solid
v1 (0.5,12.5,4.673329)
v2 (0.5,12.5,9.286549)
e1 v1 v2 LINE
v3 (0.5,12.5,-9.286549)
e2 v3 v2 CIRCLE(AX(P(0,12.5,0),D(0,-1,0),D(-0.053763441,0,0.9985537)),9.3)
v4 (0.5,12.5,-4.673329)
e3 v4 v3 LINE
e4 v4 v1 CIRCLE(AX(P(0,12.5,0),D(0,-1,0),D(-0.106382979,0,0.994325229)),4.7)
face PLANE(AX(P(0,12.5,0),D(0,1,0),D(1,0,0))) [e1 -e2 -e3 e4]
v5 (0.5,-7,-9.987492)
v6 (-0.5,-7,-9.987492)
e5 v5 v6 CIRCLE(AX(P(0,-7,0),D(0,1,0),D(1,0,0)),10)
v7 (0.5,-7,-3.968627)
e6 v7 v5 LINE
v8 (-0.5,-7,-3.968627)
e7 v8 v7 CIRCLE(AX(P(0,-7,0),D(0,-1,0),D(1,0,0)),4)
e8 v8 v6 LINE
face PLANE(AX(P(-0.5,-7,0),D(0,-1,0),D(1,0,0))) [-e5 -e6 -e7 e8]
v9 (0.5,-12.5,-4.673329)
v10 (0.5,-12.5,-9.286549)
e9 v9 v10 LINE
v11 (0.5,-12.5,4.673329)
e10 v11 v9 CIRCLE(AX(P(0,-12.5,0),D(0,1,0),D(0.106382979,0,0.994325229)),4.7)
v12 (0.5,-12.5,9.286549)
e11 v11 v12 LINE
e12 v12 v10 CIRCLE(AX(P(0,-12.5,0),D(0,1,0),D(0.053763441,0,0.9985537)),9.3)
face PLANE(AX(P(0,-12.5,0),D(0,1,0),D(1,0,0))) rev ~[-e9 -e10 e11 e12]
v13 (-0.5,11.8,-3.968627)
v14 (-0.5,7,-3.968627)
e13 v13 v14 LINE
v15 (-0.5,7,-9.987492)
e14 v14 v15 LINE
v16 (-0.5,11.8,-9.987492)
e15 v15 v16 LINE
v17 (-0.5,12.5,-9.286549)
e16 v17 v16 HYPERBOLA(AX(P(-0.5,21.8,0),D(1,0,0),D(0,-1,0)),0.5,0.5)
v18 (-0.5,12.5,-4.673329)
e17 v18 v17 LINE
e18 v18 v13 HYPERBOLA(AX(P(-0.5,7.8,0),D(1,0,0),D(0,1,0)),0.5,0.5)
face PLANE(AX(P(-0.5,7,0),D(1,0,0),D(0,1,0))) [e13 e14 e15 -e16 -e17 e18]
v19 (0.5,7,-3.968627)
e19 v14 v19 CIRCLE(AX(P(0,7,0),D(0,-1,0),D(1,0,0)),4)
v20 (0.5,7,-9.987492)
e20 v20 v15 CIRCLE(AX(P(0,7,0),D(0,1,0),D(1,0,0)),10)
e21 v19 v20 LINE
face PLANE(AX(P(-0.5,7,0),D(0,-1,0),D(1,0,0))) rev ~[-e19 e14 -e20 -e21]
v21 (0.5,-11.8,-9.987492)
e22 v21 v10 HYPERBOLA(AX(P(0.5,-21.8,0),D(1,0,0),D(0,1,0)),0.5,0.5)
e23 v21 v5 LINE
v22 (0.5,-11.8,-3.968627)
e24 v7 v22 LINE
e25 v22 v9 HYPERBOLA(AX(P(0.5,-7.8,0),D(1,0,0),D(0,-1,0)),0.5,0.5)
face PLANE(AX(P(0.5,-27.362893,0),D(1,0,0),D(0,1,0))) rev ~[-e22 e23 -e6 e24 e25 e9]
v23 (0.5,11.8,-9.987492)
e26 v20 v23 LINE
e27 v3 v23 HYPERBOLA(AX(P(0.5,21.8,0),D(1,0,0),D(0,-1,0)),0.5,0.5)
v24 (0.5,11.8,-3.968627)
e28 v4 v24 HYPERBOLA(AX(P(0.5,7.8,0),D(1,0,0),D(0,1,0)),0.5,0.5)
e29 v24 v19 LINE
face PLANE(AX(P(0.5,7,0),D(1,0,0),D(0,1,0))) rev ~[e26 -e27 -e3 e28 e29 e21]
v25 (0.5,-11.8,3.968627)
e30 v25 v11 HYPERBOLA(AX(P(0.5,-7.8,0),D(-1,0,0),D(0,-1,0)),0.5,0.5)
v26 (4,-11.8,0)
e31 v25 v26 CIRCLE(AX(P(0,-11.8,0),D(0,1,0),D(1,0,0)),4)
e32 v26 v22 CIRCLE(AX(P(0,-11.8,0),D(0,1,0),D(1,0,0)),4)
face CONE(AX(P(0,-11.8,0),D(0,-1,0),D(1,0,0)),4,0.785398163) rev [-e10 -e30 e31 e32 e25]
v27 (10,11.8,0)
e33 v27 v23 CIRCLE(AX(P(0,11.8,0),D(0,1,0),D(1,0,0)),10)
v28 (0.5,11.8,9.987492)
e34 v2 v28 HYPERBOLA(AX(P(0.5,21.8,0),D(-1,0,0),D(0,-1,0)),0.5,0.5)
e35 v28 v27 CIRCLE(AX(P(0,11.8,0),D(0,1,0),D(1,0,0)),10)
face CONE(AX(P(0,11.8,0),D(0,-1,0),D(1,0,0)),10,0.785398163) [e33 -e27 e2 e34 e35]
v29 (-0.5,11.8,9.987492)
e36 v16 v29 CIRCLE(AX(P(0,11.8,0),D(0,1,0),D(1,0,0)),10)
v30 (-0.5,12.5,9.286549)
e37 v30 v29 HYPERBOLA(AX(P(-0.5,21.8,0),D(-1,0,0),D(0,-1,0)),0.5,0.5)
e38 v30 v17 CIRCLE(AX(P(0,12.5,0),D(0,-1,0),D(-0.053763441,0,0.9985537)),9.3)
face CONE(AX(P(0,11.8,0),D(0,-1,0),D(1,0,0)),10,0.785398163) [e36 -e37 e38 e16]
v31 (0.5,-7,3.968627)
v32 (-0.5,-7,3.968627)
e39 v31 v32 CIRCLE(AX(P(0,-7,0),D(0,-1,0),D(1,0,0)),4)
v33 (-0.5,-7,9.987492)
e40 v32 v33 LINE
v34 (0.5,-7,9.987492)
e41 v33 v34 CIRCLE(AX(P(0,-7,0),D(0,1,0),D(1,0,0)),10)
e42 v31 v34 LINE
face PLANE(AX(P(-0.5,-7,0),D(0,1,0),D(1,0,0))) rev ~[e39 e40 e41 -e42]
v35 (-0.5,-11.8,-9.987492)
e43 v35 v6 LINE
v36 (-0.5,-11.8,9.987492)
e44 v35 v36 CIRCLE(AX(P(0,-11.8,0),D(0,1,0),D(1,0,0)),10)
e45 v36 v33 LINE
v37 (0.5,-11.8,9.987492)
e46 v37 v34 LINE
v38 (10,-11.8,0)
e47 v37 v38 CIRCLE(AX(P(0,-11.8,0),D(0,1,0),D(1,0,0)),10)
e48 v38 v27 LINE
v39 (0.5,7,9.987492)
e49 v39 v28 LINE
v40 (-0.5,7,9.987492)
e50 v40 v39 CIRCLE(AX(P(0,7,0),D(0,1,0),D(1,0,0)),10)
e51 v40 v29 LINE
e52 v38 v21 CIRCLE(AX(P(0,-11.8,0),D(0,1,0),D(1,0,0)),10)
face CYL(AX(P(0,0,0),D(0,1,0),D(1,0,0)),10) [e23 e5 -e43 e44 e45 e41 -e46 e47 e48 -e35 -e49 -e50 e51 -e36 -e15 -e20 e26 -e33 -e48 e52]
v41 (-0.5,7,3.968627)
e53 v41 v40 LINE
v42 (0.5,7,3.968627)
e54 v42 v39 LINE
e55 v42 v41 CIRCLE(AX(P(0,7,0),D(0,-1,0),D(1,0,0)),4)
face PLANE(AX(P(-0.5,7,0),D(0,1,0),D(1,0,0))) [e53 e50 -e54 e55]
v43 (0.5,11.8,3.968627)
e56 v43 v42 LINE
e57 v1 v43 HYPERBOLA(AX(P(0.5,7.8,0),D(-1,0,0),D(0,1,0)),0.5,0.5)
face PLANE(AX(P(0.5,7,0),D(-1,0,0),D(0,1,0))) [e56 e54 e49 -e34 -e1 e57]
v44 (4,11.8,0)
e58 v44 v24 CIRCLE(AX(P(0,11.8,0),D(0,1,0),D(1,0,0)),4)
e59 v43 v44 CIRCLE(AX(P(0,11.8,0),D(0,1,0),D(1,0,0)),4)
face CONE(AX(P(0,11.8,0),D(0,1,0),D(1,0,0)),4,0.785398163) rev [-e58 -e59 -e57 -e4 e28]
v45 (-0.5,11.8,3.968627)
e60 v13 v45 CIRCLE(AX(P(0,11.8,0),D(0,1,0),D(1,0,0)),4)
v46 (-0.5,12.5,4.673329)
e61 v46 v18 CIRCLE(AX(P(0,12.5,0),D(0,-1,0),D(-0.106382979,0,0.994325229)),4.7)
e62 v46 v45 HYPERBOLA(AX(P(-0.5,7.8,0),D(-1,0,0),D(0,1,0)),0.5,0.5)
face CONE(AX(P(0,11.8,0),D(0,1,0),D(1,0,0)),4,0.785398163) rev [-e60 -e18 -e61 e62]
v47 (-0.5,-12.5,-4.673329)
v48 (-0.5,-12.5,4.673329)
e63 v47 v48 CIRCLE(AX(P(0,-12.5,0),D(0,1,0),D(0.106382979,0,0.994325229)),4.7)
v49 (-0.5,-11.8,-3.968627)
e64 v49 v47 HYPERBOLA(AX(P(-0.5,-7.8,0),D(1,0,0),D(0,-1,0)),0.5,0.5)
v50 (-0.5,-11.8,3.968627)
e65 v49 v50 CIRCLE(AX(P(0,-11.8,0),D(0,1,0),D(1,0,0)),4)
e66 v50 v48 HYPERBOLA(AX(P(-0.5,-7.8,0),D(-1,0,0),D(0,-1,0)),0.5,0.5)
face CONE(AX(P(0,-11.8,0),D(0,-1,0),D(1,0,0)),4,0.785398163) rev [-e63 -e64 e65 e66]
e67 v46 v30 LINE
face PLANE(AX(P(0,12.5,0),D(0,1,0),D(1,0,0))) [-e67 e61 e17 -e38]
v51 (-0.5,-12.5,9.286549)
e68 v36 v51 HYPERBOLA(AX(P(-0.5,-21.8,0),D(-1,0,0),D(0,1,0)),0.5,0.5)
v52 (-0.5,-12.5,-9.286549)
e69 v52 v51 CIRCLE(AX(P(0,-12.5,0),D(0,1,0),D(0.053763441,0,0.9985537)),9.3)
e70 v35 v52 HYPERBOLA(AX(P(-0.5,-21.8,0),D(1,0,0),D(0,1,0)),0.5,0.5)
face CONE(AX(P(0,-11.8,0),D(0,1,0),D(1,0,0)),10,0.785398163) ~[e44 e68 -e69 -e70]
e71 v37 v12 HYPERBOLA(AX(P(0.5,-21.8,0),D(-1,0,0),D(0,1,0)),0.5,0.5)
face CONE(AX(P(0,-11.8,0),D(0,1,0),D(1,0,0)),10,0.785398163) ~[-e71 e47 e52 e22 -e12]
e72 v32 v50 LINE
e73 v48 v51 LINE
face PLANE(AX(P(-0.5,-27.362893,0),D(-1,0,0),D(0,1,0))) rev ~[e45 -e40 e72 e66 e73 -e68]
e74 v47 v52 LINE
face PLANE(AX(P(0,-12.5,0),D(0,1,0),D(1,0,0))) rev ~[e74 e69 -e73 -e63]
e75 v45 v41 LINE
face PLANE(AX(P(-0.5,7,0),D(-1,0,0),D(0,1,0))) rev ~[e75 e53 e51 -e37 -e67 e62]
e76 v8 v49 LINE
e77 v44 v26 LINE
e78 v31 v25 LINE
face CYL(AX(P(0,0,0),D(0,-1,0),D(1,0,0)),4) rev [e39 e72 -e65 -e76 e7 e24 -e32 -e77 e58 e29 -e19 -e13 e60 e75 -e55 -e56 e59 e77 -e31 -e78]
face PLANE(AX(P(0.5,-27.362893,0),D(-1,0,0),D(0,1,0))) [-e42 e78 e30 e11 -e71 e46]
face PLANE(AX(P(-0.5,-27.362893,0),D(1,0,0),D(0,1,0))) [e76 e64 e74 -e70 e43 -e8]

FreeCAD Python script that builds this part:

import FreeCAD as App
import Part
import Sketcher
Q = App.Units.Quantity


def edges_at(feature, points):
    """Names of the edges that pass closest to the given points."""
    edges = feature.Shape.Edges
    near = lambda p: min(range(len(edges)), key=lambda i: edges[i].distToShape(Part.Vertex(*p))[0])
    return sorted({f"Edge{near(p) + 1}" for p in points})

doc = App.newDocument("Part")
body = doc.addObject("PartDesign::Body", "Body")

sketch1 = body.newObject("Sketcher::SketchObject", "Sketch")
sketch1.AttachmentSupport = (doc.getObject("XZ_Plane"), [""])
sketch1.MapMode = "FlatFace"
sketch1.addGeometry(Part.Circle(App.Vector(0, 0, 0), App.Vector(0, 0, 1), 10), False)
sketch1.addGeometry(Part.Circle(App.Vector(0, 0, 0), App.Vector(0, 0, 1), 4), False)
sketch1.addConstraint(Sketcher.Constraint("Coincident", 0, 3, -1, 1))
sketch1.addConstraint(Sketcher.Constraint("Coincident", 1, 3, -1, 1))
sketch1.addConstraint(Sketcher.Constraint("Diameter", 0, Q("20 mm")))
sketch1.addConstraint(Sketcher.Constraint("Diameter", 1, Q("8 mm")))
pad1 = body.newObject("PartDesign::Pad", "Pad")
pad1.Profile = sketch1
pad1.Length = 25
pad1.Midplane = True
doc.recompute()

chamfer = body.newObject("PartDesign::Chamfer", "Chamfer")
chamfer.Base = (pad1, edges_at(pad1, [
    (-10, -12.5, 0),
    (-10, 12.5, 0),
    (-4, -12.5, 0),
    (-4, 12.5, 0),
]))
chamfer.Size = 0.7

sketch2 = body.newObject("Sketcher::SketchObject", "Sketch001")
sketch2.AttachmentSupport = (doc.getObject("XY_Plane"), [""])
sketch2.MapMode = "FlatFace"
sketch2.addGeometry(Part.LineSegment(App.Vector(-0.5, 27.4, 0), App.Vector(-0.5, 7, 0)), False)
sketch2.addGeometry(Part.LineSegment(App.Vector(-0.5, 7, 0), App.Vector(0.5, 7, 0)), False)
sketch2.addGeometry(Part.LineSegment(App.Vector(0.5, 7, 0), App.Vector(0.5, 27.4, 0)), False)
sketch2.addGeometry(Part.LineSegment(App.Vector(0.5, 27.4, 0), App.Vector(-0.5, 27.4, 0)), False)
sketch2.addGeometry(Part.LineSegment(App.Vector(-0.5, -7, 0), App.Vector(-0.5, -27.4, 0)), False)
sketch2.addGeometry(Part.LineSegment(App.Vector(-0.5, -27.4, 0), App.Vector(0.5, -27.4, 0)), False)
sketch2.addGeometry(Part.LineSegment(App.Vector(0.5, -27.4, 0), App.Vector(0.5, -7, 0)), False)
sketch2.addGeometry(Part.LineSegment(App.Vector(0.5, -7, 0), App.Vector(-0.5, -7, 0)), False)
sketch2.addConstraint(Sketcher.Constraint("Coincident", 0, 2, 1, 1))
sketch2.addConstraint(Sketcher.Constraint("Coincident", 1, 2, 2, 1))
sketch2.addConstraint(Sketcher.Constraint("Coincident", 2, 2, 3, 1))
sketch2.addConstraint(Sketcher.Constraint("Coincident", 3, 2, 0, 1))
sketch2.addConstraint(Sketcher.Constraint("Coincident", 4, 2, 5, 1))
sketch2.addConstraint(Sketcher.Constraint("Coincident", 5, 2, 6, 1))
sketch2.addConstraint(Sketcher.Constraint("Coincident", 6, 2, 7, 1))
sketch2.addConstraint(Sketcher.Constraint("Coincident", 7, 2, 4, 1))
sketch2.addConstraint(Sketcher.Constraint("Vertical", 0))
sketch2.addConstraint(Sketcher.Constraint("Horizontal", 1))
sketch2.addConstraint(Sketcher.Constraint("Vertical", 2))
sketch2.addConstraint(Sketcher.Constraint("Horizontal", 3))
sketch2.addConstraint(Sketcher.Constraint("Vertical", 4))
sketch2.addConstraint(Sketcher.Constraint("Horizontal", 5))
sketch2.addConstraint(Sketcher.Constraint("Vertical", 6))
sketch2.addConstraint(Sketcher.Constraint("Horizontal", 7))
sketch2.addConstraint(Sketcher.Constraint("Symmetric", 2, 2, 4, 2, -1, 1))
sketch2.addConstraint(Sketcher.Constraint("Symmetric", 0, 2, 6, 2, -1, 1))
sketch2.addConstraint(Sketcher.Constraint("Vertical", 3, 2, 4, 2))
sketch2.addConstraint(Sketcher.Constraint("DistanceX", 1, 1, 1, 2, Q("1 mm")))
sketch2.addConstraint(Sketcher.Constraint("DistanceY", -1, 1, 0, 2, Q("7 mm")))
sketch2.addConstraint(Sketcher.Constraint("DistanceY", 0, 2, 0, 1, Q("20.362893 mm")))
pocket1 = body.newObject("PartDesign::Pocket", "Pocket")
pocket1.Profile = sketch2
pocket1.Type = "ThroughAll"
pocket1.Midplane = True

doc.recompute()
